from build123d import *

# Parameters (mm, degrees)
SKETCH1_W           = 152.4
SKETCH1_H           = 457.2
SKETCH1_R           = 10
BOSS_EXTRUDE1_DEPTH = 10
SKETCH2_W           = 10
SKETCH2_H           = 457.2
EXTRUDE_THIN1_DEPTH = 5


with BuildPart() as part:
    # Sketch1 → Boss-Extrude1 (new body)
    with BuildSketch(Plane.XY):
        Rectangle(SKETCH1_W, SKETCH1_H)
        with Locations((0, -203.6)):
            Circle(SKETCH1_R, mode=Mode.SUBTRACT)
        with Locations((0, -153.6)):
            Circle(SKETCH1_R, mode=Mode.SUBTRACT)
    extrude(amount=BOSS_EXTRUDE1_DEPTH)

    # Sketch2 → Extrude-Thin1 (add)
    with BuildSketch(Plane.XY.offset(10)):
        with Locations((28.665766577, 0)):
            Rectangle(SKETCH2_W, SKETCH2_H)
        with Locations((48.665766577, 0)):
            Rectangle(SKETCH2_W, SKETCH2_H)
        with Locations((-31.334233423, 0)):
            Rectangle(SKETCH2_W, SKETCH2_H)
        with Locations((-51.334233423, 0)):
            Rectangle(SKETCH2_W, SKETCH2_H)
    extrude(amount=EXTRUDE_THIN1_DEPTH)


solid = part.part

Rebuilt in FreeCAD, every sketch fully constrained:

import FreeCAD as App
import Part
import Sketcher

V = App.Vector

doc = App.newDocument("Part")
body = doc.addObject("PartDesign::Body", "Body")

# Sketch on XY plane
sketch1 = body.newObject("Sketcher::SketchObject", "Sketch")
sketch1.AttachmentSupport = (doc.getObject("XY_Plane"), [""])
sketch1.MapMode = "FlatFace"
sketch1.addGeometry([
    Part.LineSegment(V(-76, 229, 0), V(-76, -229, 0)),  # 0
    Part.LineSegment(V(-76, -229, 0), V(76, -229, 0)),  # 1
    Part.LineSegment(V(76, -229, 0), V(76, 229, 0)),  # 2
    Part.LineSegment(V(76, 229, 0), V(-76, 229, 0)),  # 3
    Part.Circle(V(0, -204, 0), V(0, 0, 1), 10),  # 4
    Part.Circle(V(0, -154, 0), V(0, 0, 1), 10),  # 5
], False)
sketch1.addConstraint([
    Sketcher.Constraint("Coincident", 0, 2, 1, 1),
    Sketcher.Constraint("Coincident", 1, 2, 2, 1),
    Sketcher.Constraint("Coincident", 2, 2, 3, 1),
    Sketcher.Constraint("Coincident", 3, 2, 0, 1),
    Sketcher.Constraint("Vertical", 0),
    Sketcher.Constraint("Horizontal", 1),
    Sketcher.Constraint("Vertical", 2),
    Sketcher.Constraint("Horizontal", 3),
    Sketcher.Constraint("Equal", 4, 5),
    Sketcher.Constraint("Symmetric", 0, 2, 2, 2, -1, 1),
    Sketcher.Constraint("PointOnObject", 4, 3, -2),
    Sketcher.Constraint("PointOnObject", 5, 3, -2),
    Sketcher.Constraint("Diameter", 4, 20.0),
    Sketcher.Constraint("DistanceX", 1, 1, 1, 2, 152.4),
    Sketcher.Constraint("DistanceY", 0, 2, 0, 1, 457.2),
    Sketcher.Constraint("DistanceY", 4, 3, 5, 3, 50.0),
    Sketcher.Constraint("DistanceY", 0, 2, 4, 3, 25.0),
])
pad1 = body.newObject("PartDesign::Pad", "Pad")
pad1.Profile = sketch1
pad1.Length = 10

# Sketch on XY plane
sketch2 = body.newObject("Sketcher::SketchObject", "Sketch001")
sketch2.AttachmentSupport = (doc.getObject("XY_Plane"), [""])
sketch2.MapMode = "FlatFace"
sketch2.AttachmentOffset = App.Placement(V(0, 0, 10), App.Rotation())
sketch2.addGeometry([
    Part.LineSegment(V(24, 229, 0), V(24, -229, 0)),  # 0
    Part.LineSegment(V(24, -229, 0), V(34, -229, 0)),  # 1
    Part.LineSegment(V(34, -229, 0), V(34, 229, 0)),  # 2
    Part.LineSegment(V(34, 229, 0), V(24, 229, 0)),  # 3
    Part.LineSegment(V(44, 229, 0), V(44, -229, 0)),  # 4
    Part.LineSegment(V(44, -229, 0), V(54, -229, 0)),  # 5
    Part.LineSegment(V(54, -229, 0), V(54, 229, 0)),  # 6
    Part.LineSegment(V(54, 229, 0), V(44, 229, 0)),  # 7
    Part.LineSegment(V(-36, 229, 0), V(-36, -229, 0)),  # 8
    Part.LineSegment(V(-36, -229, 0), V(-26, -229, 0)),  # 9
    Part.LineSegment(V(-26, -229, 0), V(-26, 229, 0)),  # 10
    Part.LineSegment(V(-26, 229, 0), V(-36, 229, 0)),  # 11
    Part.LineSegment(V(-56, 229, 0), V(-56, -229, 0)),  # 12
    Part.LineSegment(V(-56, -229, 0), V(-46, -229, 0)),  # 13
    Part.LineSegment(V(-46, -229, 0), V(-46, 229, 0)),  # 14
    Part.LineSegment(V(-46, 229, 0), V(-56, 229, 0)),  # 15
], False)
sketch2.addConstraint([
    Sketcher.Constraint("Coincident", 0, 2, 1, 1),
    Sketcher.Constraint("Coincident", 1, 2, 2, 1),
    Sketcher.Constraint("Coincident", 2, 2, 3, 1),
    Sketcher.Constraint("Coincident", 3, 2, 0, 1),
    Sketcher.Constraint("Coincident", 4, 2, 5, 1),
    Sketcher.Constraint("Coincident", 5, 2, 6, 1),
    Sketcher.Constraint("Coincident", 6, 2, 7, 1),
    Sketcher.Constraint("Coincident", 7, 2, 4, 1),
    Sketcher.Constraint("Coincident", 8, 2, 9, 1),
    Sketcher.Constraint("Coincident", 9, 2, 10, 1),
    Sketcher.Constraint("Coincident", 10, 2, 11, 1),
    Sketcher.Constraint("Coincident", 11, 2, 8, 1),
    Sketcher.Constraint("Coincident", 12, 2, 13, 1),
    Sketcher.Constraint("Coincident", 13, 2, 14, 1),
    Sketcher.Constraint("Coincident", 14, 2, 15, 1),
    Sketcher.Constraint("Coincident", 15, 2, 12, 1),
    Sketcher.Constraint("Vertical", 0),
    Sketcher.Constraint("Horizontal", 1),
    Sketcher.Constraint("Vertical", 2),
    Sketcher.Constraint("Horizontal", 3),
    Sketcher.Constraint("Vertical", 4),
    Sketcher.Constraint("Horizontal", 5),
    Sketcher.Constraint("Vertical", 6),
    Sketcher.Constraint("Horizontal", 7),
    Sketcher.Constraint("Vertical", 8),
    Sketcher.Constraint("Horizontal", 9),
    Sketcher.Constraint("Vertical", 10),
    Sketcher.Constraint("Horizontal", 11),
    Sketcher.Constraint("Vertical", 12),
    Sketcher.Constraint("Horizontal", 13),
    Sketcher.Constraint("Vertical", 14),
    Sketcher.Constraint("Horizontal", 15),
    Sketcher.Constraint("Horizontal", 1, 2, 4, 2),
    Sketcher.Constraint("Horizontal", 3, 2, 6, 2),
    Sketcher.Constraint("Horizontal", 5, 2, 8, 2),
    Sketcher.Constraint("Horizontal", 7, 2, 10, 2),
    Sketcher.Constraint("Horizontal", 9, 2, 12, 2),
    Sketcher.Constraint("Horizontal", 11, 2, 14, 2),
    Sketcher.Constraint("Equal", 3, 5),
    Sketcher.Constraint("Equal", 7, 9),
    Sketcher.Constraint("Equal", 11, 13),
    Sketcher.Constraint("DistanceX", 1, 1, 1, 2, 10.0),
    Sketcher.Constraint("DistanceY", 0, 2, 0, 1, 457.2),
    Sketcher.Constraint("DistanceX", 1, 2, 4, 2, 10.0),
    Sketcher.Constraint("DistanceX", 8, 2, 0, 2, 60.0),
    Sketcher.Constraint("DistanceX", 12, 2, 8, 2, 20.0),
    Sketcher.Constraint("DistanceY", 0, 2, -1, 1, 228.6),
    Sketcher.Constraint("DistanceX", -1, 1, 0, 2, 23.665767),
])
pad2 = body.newObject("PartDesign::Pad", "Pad001")
pad2.Profile = sketch2
pad2.Length = 5

doc.recompute()
